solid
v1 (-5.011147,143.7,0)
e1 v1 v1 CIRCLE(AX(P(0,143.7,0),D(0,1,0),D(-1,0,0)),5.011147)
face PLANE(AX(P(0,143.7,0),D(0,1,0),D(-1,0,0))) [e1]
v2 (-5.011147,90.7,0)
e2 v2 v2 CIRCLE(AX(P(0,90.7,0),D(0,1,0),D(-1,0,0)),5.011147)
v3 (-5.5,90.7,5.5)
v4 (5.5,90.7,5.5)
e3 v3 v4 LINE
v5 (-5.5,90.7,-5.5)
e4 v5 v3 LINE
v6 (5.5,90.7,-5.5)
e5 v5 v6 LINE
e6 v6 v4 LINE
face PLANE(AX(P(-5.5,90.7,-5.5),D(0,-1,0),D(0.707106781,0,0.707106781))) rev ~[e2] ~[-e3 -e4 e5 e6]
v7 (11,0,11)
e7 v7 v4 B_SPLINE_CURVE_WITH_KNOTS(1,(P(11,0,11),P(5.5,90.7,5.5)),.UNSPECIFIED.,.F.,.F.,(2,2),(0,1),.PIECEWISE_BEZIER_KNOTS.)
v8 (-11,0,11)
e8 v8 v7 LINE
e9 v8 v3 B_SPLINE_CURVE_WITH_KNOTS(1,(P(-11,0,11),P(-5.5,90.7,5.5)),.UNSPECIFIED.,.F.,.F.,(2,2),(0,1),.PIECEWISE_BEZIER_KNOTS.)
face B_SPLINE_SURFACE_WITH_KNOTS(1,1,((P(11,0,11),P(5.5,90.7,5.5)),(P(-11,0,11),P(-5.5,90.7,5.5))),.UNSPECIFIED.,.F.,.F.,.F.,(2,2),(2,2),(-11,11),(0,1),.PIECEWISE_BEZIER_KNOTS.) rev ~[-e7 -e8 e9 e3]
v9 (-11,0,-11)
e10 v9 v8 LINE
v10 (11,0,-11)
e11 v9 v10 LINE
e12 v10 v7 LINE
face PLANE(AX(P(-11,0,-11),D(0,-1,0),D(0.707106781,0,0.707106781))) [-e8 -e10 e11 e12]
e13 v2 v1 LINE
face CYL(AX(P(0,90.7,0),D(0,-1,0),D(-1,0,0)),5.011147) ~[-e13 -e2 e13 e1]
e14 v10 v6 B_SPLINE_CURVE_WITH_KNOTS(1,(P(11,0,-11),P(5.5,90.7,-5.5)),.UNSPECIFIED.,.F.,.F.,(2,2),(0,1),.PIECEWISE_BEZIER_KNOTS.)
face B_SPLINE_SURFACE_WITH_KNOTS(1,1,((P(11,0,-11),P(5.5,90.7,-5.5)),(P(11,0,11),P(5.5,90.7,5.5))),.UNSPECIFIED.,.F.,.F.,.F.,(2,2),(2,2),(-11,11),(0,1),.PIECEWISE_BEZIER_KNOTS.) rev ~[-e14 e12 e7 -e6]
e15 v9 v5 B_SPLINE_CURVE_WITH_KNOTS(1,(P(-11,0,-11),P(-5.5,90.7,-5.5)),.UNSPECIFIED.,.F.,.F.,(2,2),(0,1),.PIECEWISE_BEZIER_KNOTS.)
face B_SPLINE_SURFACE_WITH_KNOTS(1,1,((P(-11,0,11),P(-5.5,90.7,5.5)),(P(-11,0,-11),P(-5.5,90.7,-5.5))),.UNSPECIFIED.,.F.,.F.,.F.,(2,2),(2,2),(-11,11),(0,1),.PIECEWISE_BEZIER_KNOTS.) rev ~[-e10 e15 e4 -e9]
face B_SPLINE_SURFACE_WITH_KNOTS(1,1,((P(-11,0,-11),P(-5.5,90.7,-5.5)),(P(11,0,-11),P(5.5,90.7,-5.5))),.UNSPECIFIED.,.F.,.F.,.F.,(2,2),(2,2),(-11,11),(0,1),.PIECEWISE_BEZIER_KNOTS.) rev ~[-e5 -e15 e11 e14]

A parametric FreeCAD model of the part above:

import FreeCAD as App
import Part
import Sketcher

V = App.Vector
Q = App.Units.Quantity

doc = App.newDocument("Part")
params = doc.addObject("Spreadsheet::Sheet", "Params")
for row, (alias, value) in enumerate([
    ("sketch1_width", "22 mm"),
    ("sketch2_width", "11 mm"),
    ("pad1_length", "53 mm"),
], start=1):
    params.set(f"A{row}", alias)
    params.set(f"B{row}", "=" + value)
    params.setAlias(f"B{row}", alias)

body = doc.addObject("PartDesign::Body", "Body")

sketch1 = body.newObject("Sketcher::SketchObject", "Sketch")
sketch1.AttachmentSupport = (doc.getObject("XZ_Plane"), [""])
sketch1.MapMode = "FlatFace"
sketch1.addGeometry(Part.LineSegment(V(-11, 11, 0), V(-11, -11, 0)), False)
sketch1.addGeometry(Part.LineSegment(V(-11, -11, 0), V(11, -11, 0)), False)
sketch1.addGeometry(Part.LineSegment(V(11, -11, 0), V(11, 11, 0)), False)
sketch1.addGeometry(Part.LineSegment(V(11, 11, 0), V(-11, 11, 0)), False)
sketch1.addConstraint(Sketcher.Constraint("Coincident", 0, 2, 1, 1))
sketch1.addConstraint(Sketcher.Constraint("Coincident", 1, 2, 2, 1))
sketch1.addConstraint(Sketcher.Constraint("Coincident", 2, 2, 3, 1))
sketch1.addConstraint(Sketcher.Constraint("Coincident", 3, 2, 0, 1))
sketch1.addConstraint(Sketcher.Constraint("Vertical", 0))
sketch1.addConstraint(Sketcher.Constraint("Horizontal", 1))
sketch1.addConstraint(Sketcher.Constraint("Vertical", 2))
sketch1.addConstraint(Sketcher.Constraint("Horizontal", 3))
sketch1.addConstraint(Sketcher.Constraint("Symmetric", 0, 2, 2, 2, -1, 1))
sketch1.addConstraint(Sketcher.Constraint("Equal", 3, 0))
sketch1.addConstraint(Sketcher.Constraint("DistanceX", 1, 1, 1, 2, Q("22 mm")))
sketch1.setExpression("Constraints[10]", "Params.sketch1_width")

sketch2 = body.newObject("Sketcher::SketchObject", "Sketch001")
sketch2.AttachmentSupport = (doc.getObject("XZ_Plane"), [""])
sketch2.MapMode = "FlatFace"
sketch2.AttachmentOffset = App.Placement(V(0, 0, -90.7), App.Rotation())
sketch2.addGeometry(Part.LineSegment(V(-6, 6, 0), V(-6, -6, 0)), False)
sketch2.addGeometry(Part.LineSegment(V(-6, -6, 0), V(6, -6, 0)), False)
sketch2.addGeometry(Part.LineSegment(V(6, -6, 0), V(6, 6, 0)), False)
sketch2.addGeometry(Part.LineSegment(V(6, 6, 0), V(-6, 6, 0)), False)
sketch2.addConstraint(Sketcher.Constraint("Coincident", 0, 2, 1, 1))
sketch2.addConstraint(Sketcher.Constraint("Coincident", 1, 2, 2, 1))
sketch2.addConstraint(Sketcher.Constraint("Coincident", 2, 2, 3, 1))
sketch2.addConstraint(Sketcher.Constraint("Coincident", 3, 2, 0, 1))
sketch2.addConstraint(Sketcher.Constraint("Vertical", 0))
sketch2.addConstraint(Sketcher.Constraint("Horizontal", 1))
sketch2.addConstraint(Sketcher.Constraint("Vertical", 2))
sketch2.addConstraint(Sketcher.Constraint("Horizontal", 3))
sketch2.addConstraint(Sketcher.Constraint("Symmetric", 0, 2, 2, 2, -1, 1))
sketch2.addConstraint(Sketcher.Constraint("Equal", 3, 0))
sketch2.addConstraint(Sketcher.Constraint("DistanceX", 1, 1, 1, 2, Q("11 mm")))
sketch2.setExpression("Constraints[10]", "Params.sketch2_width")

additiveloft = body.newObject("PartDesign::AdditiveLoft", "AdditiveLoft")
additiveloft.Profile = sketch1
additiveloft.Sections = [sketch2]

sketch3 = body.newObject("Sketcher::SketchObject", "Sketch002")
sketch3.AttachmentSupport = (doc.getObject("XZ_Plane"), [""])
sketch3.MapMode = "FlatFace"
sketch3.AttachmentOffset = App.Placement(V(0, 0, -90.7), App.Rotation())
sketch3.addGeometry(Part.Circle(V(0, 0, 0), V(0, 0, 1), 5), False)
sketch3.addConstraint(Sketcher.Constraint("Coincident", 0, 3, -1, 1))
sketch3.addConstraint(Sketcher.Constraint("Diameter", 0, Q("10.022294 mm")))
pad1 = body.newObject("PartDesign::Pad", "Pad")
pad1.Profile = sketch3
pad1.setExpression("Length", "Params.pad1_length")
pad1.Reversed = True

doc.recompute()
